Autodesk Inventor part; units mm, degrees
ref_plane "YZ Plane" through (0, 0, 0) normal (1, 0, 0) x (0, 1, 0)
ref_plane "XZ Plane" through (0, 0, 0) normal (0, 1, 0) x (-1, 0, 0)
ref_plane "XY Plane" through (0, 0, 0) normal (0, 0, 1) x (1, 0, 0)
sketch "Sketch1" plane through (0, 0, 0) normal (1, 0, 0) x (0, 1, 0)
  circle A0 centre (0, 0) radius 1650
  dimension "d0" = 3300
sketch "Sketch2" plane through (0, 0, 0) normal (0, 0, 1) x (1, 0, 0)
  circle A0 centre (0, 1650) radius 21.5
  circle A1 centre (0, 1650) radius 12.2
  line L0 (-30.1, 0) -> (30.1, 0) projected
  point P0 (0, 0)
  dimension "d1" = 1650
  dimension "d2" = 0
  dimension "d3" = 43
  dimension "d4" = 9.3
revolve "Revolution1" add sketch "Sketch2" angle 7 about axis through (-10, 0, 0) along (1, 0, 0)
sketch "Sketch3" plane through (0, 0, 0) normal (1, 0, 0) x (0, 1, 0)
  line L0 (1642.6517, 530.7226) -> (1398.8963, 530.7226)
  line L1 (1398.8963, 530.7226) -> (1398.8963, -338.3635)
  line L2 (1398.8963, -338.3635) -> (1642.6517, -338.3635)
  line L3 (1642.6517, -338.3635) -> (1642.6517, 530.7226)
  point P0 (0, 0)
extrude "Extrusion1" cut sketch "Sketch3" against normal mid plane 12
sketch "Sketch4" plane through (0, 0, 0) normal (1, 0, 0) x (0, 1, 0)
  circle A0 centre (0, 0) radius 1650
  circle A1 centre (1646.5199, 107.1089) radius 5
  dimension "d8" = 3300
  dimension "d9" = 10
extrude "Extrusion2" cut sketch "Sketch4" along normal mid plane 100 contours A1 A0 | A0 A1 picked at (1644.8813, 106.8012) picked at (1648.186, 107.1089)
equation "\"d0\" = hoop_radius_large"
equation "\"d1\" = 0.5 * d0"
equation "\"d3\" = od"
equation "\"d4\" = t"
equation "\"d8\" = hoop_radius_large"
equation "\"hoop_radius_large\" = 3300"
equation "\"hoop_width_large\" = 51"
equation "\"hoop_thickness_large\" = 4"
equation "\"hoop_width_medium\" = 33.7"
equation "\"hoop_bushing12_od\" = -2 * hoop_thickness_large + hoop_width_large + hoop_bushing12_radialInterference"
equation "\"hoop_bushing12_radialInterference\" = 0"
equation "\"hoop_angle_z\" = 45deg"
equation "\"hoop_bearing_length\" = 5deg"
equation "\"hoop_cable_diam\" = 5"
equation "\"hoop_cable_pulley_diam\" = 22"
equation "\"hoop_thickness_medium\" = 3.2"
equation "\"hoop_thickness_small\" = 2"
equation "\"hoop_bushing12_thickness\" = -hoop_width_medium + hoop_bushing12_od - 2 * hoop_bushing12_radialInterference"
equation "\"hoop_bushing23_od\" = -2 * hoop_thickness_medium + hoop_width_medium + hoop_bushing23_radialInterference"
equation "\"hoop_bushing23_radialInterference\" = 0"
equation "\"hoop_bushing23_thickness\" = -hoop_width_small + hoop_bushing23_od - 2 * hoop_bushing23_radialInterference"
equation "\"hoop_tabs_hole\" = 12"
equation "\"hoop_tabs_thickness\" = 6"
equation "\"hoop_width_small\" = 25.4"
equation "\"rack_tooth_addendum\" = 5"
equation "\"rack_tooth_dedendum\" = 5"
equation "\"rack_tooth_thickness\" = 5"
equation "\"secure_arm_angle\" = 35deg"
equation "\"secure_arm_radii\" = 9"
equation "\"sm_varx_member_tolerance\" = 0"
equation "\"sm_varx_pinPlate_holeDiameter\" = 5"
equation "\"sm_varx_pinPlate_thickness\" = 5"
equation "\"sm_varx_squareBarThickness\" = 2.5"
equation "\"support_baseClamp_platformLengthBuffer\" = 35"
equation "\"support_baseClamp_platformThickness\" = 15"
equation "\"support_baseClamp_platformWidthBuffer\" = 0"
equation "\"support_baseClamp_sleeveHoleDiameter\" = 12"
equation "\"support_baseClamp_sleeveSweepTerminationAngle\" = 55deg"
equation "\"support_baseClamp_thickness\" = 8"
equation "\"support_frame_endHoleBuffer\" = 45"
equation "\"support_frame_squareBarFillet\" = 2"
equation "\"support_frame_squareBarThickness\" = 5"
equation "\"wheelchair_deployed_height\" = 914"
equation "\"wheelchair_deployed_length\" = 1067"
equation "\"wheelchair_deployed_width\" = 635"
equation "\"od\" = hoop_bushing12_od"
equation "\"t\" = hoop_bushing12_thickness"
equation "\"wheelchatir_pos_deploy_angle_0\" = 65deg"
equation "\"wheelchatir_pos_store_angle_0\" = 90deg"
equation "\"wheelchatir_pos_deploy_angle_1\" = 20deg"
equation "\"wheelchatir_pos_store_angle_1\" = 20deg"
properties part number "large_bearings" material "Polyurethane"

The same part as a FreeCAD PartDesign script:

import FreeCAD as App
import Part
import Sketcher
from FreeCAD import Vector

doc = App.newDocument("Part")
body = doc.addObject("PartDesign::Body", "Body")

# Sketch on XY plane
sketch1 = body.newObject("Sketcher::SketchObject", "Sketch")
sketch1.AttachmentSupport = (doc.getObject("XY_Plane"), [""])
sketch1.MapMode = "FlatFace"
sketch1.addGeometry([
    Part.Circle(Vector(0, 1650, 0), Vector(0, 0, 1), 22),
    Part.Circle(Vector(0, 1650, 0), Vector(0, 0, 1), 12),
], False)
sketch1.addConstraint([
    Sketcher.Constraint("Coincident", 1, 3, 0, 3),
    Sketcher.Constraint("PointOnObject", 0, 3, -2),
    Sketcher.Constraint("Diameter", 0, 43.0),
    Sketcher.Constraint("DistanceY", -1, 1, 0, 3, 1650.0),
    Sketcher.Constraint("Diameter", 1, 24.4),
])
revolution = body.newObject("PartDesign::Revolution", "Revolution")
revolution.Profile = sketch1
revolution.ReferenceAxis = (sketch1, ["H_Axis"])
revolution.Angle = 7

# Sketch on YZ plane
sketch2 = body.newObject("Sketcher::SketchObject", "Sketch001")
sketch2.AttachmentSupport = (doc.getObject("YZ_Plane"), [""])
sketch2.MapMode = "FlatFace"
sketch2.addGeometry([
    Part.LineSegment(Vector(1643, -338, 0), Vector(1643, 531, 0)),
    Part.LineSegment(Vector(1643, 531, 0), Vector(1399, 531, 0)),
    Part.LineSegment(Vector(1399, 531, 0), Vector(1399, -338, 0)),
    Part.LineSegment(Vector(1399, -338, 0), Vector(1643, -338, 0)),
], False)
sketch2.addConstraint([
    Sketcher.Constraint("Coincident", 0, 2, 1, 1),
    Sketcher.Constraint("Coincident", 1, 2, 2, 1),
    Sketcher.Constraint("Coincident", 2, 2, 3, 1),
    Sketcher.Constraint("Coincident", 3, 2, 0, 1),
    Sketcher.Constraint("Vertical", 0),
    Sketcher.Constraint("Horizontal", 1),
    Sketcher.Constraint("Vertical", 2),
    Sketcher.Constraint("Horizontal", 3),
    Sketcher.Constraint("DistanceY", 0, 1, 0, 2, 869.086),
    Sketcher.Constraint("DistanceX", 1, 2, 1, 1, 243.7554),
    Sketcher.Constraint("DistanceX", -1, 1, 0, 2, 1642.6517),
    Sketcher.Constraint("DistanceY", -1, 1, 0, 2, 530.7226),
])
pocket1 = body.newObject("PartDesign::Pocket", "Pocket")
pocket1.Profile = sketch2
pocket1.Length = 12
pocket1.Midplane = True

# Sketch on YZ plane
sketch3 = body.newObject("Sketcher::SketchObject", "Sketch002")
sketch3.AttachmentSupport = (doc.getObject("YZ_Plane"), [""])
sketch3.MapMode = "FlatFace"
sketch3.addGeometry(Part.Circle(Vector(1647, 107, 0), Vector(0, 0, 1), 5), False)
sketch3.addConstraint([
    Sketcher.Constraint("Diameter", 0, 10.0),
    Sketcher.Constraint("DistanceX", -1, 1, 0, 3, 1646.52),
    Sketcher.Constraint("DistanceY", -1, 1, 0, 3, 107.109),
])
pocket2 = body.newObject("PartDesign::Pocket", "Pocket001")
pocket2.Profile = sketch3
pocket2.Length = 100
pocket2.Midplane = True

doc.recompute()
